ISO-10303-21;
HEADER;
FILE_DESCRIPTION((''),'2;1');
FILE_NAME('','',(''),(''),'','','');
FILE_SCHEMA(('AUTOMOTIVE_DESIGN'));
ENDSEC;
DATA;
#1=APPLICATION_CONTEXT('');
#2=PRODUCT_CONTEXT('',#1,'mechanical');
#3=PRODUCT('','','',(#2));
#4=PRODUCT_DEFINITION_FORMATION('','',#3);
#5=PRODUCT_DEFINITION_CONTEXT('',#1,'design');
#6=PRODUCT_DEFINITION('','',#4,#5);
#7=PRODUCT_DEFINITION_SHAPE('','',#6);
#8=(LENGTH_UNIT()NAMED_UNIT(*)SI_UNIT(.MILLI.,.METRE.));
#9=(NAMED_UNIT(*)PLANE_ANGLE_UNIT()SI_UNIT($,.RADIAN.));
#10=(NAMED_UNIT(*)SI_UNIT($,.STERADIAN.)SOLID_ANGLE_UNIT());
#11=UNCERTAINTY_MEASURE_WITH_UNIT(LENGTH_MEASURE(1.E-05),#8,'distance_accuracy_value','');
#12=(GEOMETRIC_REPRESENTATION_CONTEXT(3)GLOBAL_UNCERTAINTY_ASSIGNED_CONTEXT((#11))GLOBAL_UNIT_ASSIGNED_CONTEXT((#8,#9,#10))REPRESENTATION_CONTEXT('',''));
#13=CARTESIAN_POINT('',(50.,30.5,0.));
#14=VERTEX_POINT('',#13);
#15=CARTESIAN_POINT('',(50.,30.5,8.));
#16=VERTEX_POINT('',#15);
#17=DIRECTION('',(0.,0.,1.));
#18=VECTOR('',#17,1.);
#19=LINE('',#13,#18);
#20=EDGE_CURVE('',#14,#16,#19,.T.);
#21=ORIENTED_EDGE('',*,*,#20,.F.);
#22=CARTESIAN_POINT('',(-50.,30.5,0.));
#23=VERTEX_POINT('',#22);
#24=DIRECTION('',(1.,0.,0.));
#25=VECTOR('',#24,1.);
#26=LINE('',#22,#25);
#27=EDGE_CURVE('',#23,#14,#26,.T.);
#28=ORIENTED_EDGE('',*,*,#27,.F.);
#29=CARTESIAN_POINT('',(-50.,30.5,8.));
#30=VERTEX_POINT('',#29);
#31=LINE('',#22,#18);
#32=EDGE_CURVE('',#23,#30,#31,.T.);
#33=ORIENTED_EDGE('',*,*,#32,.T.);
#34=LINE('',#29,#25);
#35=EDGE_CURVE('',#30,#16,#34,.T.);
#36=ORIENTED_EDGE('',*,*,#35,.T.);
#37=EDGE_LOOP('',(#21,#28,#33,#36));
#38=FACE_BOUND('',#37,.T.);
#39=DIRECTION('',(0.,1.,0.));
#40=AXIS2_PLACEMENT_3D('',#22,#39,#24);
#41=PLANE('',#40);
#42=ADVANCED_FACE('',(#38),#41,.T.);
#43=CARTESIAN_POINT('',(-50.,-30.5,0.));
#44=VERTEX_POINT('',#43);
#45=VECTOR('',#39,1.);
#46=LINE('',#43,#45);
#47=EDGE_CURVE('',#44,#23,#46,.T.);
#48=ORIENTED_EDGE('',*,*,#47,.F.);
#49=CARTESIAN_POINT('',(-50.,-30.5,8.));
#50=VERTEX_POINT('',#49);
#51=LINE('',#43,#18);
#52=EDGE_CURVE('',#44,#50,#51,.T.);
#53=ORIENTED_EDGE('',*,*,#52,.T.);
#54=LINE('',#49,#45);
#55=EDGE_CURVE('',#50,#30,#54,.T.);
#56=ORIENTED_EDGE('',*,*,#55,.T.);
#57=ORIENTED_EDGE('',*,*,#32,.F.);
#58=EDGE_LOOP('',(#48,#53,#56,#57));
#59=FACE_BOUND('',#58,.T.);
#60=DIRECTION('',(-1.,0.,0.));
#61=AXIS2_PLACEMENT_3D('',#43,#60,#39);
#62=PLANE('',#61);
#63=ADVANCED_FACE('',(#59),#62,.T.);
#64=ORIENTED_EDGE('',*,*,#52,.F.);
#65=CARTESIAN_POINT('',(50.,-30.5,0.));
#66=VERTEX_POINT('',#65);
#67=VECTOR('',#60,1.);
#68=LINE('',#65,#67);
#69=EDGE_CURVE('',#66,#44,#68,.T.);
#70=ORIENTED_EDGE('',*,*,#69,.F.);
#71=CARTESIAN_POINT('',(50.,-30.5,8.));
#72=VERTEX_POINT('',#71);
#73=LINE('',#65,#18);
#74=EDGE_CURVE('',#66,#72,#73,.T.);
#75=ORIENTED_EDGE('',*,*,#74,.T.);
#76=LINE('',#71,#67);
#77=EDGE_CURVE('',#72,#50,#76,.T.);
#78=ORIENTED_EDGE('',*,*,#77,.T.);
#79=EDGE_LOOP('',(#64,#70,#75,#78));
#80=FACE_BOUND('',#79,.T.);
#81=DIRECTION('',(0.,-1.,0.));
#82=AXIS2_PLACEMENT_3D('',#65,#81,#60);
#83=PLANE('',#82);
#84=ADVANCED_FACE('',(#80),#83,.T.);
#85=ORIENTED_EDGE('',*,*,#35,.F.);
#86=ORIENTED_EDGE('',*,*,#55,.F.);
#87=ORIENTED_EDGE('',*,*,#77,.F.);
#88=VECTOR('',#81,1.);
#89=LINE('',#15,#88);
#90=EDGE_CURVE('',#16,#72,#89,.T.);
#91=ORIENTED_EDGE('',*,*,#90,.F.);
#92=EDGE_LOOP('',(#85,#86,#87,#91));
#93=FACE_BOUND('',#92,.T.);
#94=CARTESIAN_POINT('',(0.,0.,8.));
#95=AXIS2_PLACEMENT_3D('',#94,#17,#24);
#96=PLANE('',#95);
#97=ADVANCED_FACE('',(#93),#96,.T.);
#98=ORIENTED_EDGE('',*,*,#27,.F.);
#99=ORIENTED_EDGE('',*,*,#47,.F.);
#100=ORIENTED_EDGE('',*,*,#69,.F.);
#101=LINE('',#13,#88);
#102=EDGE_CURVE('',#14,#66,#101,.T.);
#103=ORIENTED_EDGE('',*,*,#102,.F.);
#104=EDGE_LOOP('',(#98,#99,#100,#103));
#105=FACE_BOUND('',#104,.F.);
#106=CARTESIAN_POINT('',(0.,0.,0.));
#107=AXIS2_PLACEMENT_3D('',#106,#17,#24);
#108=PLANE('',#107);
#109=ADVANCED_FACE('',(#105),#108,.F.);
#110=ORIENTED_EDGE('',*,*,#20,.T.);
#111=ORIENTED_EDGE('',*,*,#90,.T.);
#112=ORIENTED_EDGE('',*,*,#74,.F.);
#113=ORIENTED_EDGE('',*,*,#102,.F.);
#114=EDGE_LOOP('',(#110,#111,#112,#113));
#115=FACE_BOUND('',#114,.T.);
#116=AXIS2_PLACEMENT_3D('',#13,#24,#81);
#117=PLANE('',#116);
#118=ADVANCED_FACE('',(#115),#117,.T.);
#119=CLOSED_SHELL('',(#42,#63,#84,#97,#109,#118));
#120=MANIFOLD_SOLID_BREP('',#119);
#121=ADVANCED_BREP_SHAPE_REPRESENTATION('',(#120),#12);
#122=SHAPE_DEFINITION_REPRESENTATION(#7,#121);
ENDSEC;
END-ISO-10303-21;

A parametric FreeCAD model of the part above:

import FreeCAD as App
import Part
import Sketcher
Q = App.Units.Quantity

doc = App.newDocument("Part")
body = doc.addObject("PartDesign::Body", "Body")

# Sketch on XY plane
sketch1 = body.newObject("Sketcher::SketchObject", "Sketch")
sketch1.AttachmentSupport = (doc.getObject("XY_Plane"), [""])
sketch1.MapMode = "FlatFace"
sketch1.addGeometry(Part.LineSegment(App.Vector(50, 30, 0), App.Vector(-50, 30, 0)), False)
sketch1.addGeometry(Part.LineSegment(App.Vector(-50, 30, 0), App.Vector(-50, -30, 0)), False)
sketch1.addGeometry(Part.LineSegment(App.Vector(-50, -30, 0), App.Vector(50, -30, 0)), False)
sketch1.addGeometry(Part.LineSegment(App.Vector(50, -30, 0), App.Vector(50, 30, 0)), False)
sketch1.addConstraint(Sketcher.Constraint("Coincident", 0, 2, 1, 1))
sketch1.addConstraint(Sketcher.Constraint("Coincident", 1, 2, 2, 1))
sketch1.addConstraint(Sketcher.Constraint("Coincident", 2, 2, 3, 1))
sketch1.addConstraint(Sketcher.Constraint("Coincident", 3, 2, 0, 1))
sketch1.addConstraint(Sketcher.Constraint("Horizontal", 0))
sketch1.addConstraint(Sketcher.Constraint("Vertical", 1))
sketch1.addConstraint(Sketcher.Constraint("Horizontal", 2))
sketch1.addConstraint(Sketcher.Constraint("Vertical", 3))
sketch1.addConstraint(Sketcher.Constraint("Symmetric", 0, 2, 2, 2, -1, 1))
sketch1.addConstraint(Sketcher.Constraint("DistanceX", 0, 2, 0, 1, Q("100 mm")))
sketch1.addConstraint(Sketcher.Constraint("DistanceY", 1, 2, 1, 1, Q("61 mm")))
pad1 = body.newObject("PartDesign::Pad", "Pad")
pad1.Profile = sketch1
pad1.Length = 8

doc.recompute()
